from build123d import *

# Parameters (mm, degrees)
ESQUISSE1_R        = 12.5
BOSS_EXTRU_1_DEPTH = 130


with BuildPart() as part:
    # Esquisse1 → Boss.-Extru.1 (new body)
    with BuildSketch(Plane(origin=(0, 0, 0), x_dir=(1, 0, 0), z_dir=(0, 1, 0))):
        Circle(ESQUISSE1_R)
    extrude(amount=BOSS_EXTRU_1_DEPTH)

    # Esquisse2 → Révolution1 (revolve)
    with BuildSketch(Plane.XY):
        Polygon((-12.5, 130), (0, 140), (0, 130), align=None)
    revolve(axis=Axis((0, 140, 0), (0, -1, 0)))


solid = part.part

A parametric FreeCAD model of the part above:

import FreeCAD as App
import Part
import Sketcher
Q = App.Units.Quantity

doc = App.newDocument("Part")
body = doc.addObject("PartDesign::Body", "Body")

# Sketch on XZ plane
sketch1 = body.newObject("Sketcher::SketchObject", "Sketch")
sketch1.AttachmentSupport = (doc.getObject("XZ_Plane"), [""])
sketch1.MapMode = "FlatFace"
sketch1.addGeometry(Part.Circle(App.Vector(0, 0, 0), App.Vector(0, 0, 1), 12), False)
sketch1.addConstraint(Sketcher.Constraint("Coincident", 0, 3, -1, 1))
sketch1.addConstraint(Sketcher.Constraint("Diameter", 0, Q("25 mm")))
pad1 = body.newObject("PartDesign::Pad", "Pad")
pad1.Profile = sketch1
pad1.Length = 130
pad1.Reversed = True

# Sketch on XY plane
sketch2 = body.newObject("Sketcher::SketchObject", "Sketch001")
sketch2.AttachmentSupport = (doc.getObject("XY_Plane"), [""])
sketch2.MapMode = "FlatFace"
sketch2.addGeometry(Part.LineSegment(App.Vector(0, 140, 0), App.Vector(-12, 130, 0)), False)
sketch2.addGeometry(Part.LineSegment(App.Vector(-12, 130, 0), App.Vector(0, 130, 0)), False)
sketch2.addGeometry(Part.LineSegment(App.Vector(0, 130, 0), App.Vector(0, 140, 0)), False)
sketch2.addConstraint(Sketcher.Constraint("Coincident", 0, 2, 1, 1))
sketch2.addConstraint(Sketcher.Constraint("Coincident", 1, 2, 2, 1))
sketch2.addConstraint(Sketcher.Constraint("Coincident", 2, 2, 0, 1))
sketch2.addConstraint(Sketcher.Constraint("Horizontal", 1))
sketch2.addConstraint(Sketcher.Constraint("Vertical", 2))
sketch2.addConstraint(Sketcher.Constraint("PointOnObject", 1, 2, -2))
sketch2.addConstraint(Sketcher.Constraint("DistanceY", 2, 1, 2, 2, Q("10 mm")))
sketch2.addConstraint(Sketcher.Constraint("DistanceX", 1, 1, 1, 2, Q("12.5 mm")))
sketch2.addConstraint(Sketcher.Constraint("DistanceY", -1, 1, 0, 2, Q("130 mm")))
revolution = body.newObject("PartDesign::Revolution", "Revolution")
revolution.Profile = sketch2
revolution.ReferenceAxis = (sketch2, ["V_Axis"])
revolution.Angle = 360

doc.recompute()
